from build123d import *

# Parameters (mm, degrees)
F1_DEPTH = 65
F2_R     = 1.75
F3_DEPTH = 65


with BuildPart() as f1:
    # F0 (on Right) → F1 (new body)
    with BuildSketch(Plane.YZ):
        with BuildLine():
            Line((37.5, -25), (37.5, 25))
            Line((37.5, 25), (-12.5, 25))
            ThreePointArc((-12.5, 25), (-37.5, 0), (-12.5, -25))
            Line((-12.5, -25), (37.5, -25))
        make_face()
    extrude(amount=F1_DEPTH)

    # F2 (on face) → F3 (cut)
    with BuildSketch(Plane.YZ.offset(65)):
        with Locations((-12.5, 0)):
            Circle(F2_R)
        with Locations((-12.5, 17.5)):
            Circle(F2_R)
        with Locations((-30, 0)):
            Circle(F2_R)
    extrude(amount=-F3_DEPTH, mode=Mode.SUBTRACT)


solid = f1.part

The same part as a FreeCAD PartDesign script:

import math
import FreeCAD as App
import Part
import Sketcher
from FreeCAD import Vector

doc = App.newDocument("Part")
body = doc.addObject("PartDesign::Body", "Body")

# Sketch on YZ plane
sketch1 = doc.addObject("Sketcher::SketchObject", "Sketch")
body.addObject(sketch1)
sketch1.AttachmentSupport = (doc.YZ_Plane, [""])
sketch1.MapMode = "FlatFace"
sketch1.addGeometry(Part.LineSegment(Vector(38, -25, 0), Vector(38, 25, 0)), False)
sketch1.addGeometry(Part.LineSegment(Vector(38, 25, 0), Vector(-12, 25, 0)), False)
sketch1.addGeometry(Part.ArcOfCircle(Part.Circle(Vector(-12, 0, 0), Vector(0, 0, 1), 25), math.radians(90), math.radians(270)), False)
sketch1.addGeometry(Part.LineSegment(Vector(-12, -25, 0), Vector(38, -25, 0)), False)
sketch1.addConstraint(Sketcher.Constraint("Coincident", 0, 2, 1, 1))
sketch1.addConstraint(Sketcher.Constraint("Tangent", 1, 2, 2, 1))
sketch1.addConstraint(Sketcher.Constraint("Tangent", 2, 2, 3, 1))
sketch1.addConstraint(Sketcher.Constraint("Coincident", 3, 2, 0, 1))
sketch1.addConstraint(Sketcher.Constraint("Vertical", 0))
sketch1.addConstraint(Sketcher.Constraint("Horizontal", 1))
sketch1.addConstraint(Sketcher.Constraint("Horizontal", 3))
sketch1.addConstraint(Sketcher.Constraint("PointOnObject", 2, 3, -1))
sketch1.addConstraint(Sketcher.Constraint("Equal", 3, 0))
sketch1.addConstraint(Sketcher.Constraint("Radius", 2, 25.0))
sketch1.addConstraint(Sketcher.Constraint("DistanceX", 2, 3, -1, 1, 12.5))
pad1 = doc.addObject("PartDesign::Pad", "Pad")
body.addObject(pad1)
pad1.Profile = sketch1
pad1.Length = 65

# Sketch on YZ plane
sketch2 = doc.addObject("Sketcher::SketchObject", "Sketch001")
body.addObject(sketch2)
sketch2.AttachmentSupport = (doc.YZ_Plane, [""])
sketch2.MapMode = "FlatFace"
sketch2.AttachmentOffset = App.Placement(Vector(0, 0, 65), App.Rotation())
sketch2.addGeometry(Part.Circle(Vector(-12.5, 0, 0), Vector(0, 0, 1), 1.8), False)
sketch2.addGeometry(Part.Circle(Vector(-12.5, 17.5, 0), Vector(0, 0, 1), 1.8), False)
sketch2.addGeometry(Part.Circle(Vector(-30, 0, 0), Vector(0, 0, 1), 1.8), False)
sketch2.addConstraint(Sketcher.Constraint("Equal", 0, 1))
sketch2.addConstraint(Sketcher.Constraint("Equal", 1, 2))
sketch2.addConstraint(Sketcher.Constraint("PointOnObject", 0, 3, -1))
sketch2.addConstraint(Sketcher.Constraint("PointOnObject", 2, 3, -1))
sketch2.addConstraint(Sketcher.Constraint("Vertical", 0, 3, 1, 3))
sketch2.addConstraint(Sketcher.Constraint("Diameter", 0, 3.5))
sketch2.addConstraint(Sketcher.Constraint("DistanceX", 2, 3, -1, 1, 30.0))
sketch2.addConstraint(Sketcher.Constraint("DistanceX", 0, 3, -1, 1, 12.5))
sketch2.addConstraint(Sketcher.Constraint("DistanceY", -1, 1, 1, 3, 17.5))
pocket1 = doc.addObject("PartDesign::Pocket", "Pocket")
body.addObject(pocket1)
pocket1.Profile = sketch2
pocket1.Length = 65

doc.recompute()
